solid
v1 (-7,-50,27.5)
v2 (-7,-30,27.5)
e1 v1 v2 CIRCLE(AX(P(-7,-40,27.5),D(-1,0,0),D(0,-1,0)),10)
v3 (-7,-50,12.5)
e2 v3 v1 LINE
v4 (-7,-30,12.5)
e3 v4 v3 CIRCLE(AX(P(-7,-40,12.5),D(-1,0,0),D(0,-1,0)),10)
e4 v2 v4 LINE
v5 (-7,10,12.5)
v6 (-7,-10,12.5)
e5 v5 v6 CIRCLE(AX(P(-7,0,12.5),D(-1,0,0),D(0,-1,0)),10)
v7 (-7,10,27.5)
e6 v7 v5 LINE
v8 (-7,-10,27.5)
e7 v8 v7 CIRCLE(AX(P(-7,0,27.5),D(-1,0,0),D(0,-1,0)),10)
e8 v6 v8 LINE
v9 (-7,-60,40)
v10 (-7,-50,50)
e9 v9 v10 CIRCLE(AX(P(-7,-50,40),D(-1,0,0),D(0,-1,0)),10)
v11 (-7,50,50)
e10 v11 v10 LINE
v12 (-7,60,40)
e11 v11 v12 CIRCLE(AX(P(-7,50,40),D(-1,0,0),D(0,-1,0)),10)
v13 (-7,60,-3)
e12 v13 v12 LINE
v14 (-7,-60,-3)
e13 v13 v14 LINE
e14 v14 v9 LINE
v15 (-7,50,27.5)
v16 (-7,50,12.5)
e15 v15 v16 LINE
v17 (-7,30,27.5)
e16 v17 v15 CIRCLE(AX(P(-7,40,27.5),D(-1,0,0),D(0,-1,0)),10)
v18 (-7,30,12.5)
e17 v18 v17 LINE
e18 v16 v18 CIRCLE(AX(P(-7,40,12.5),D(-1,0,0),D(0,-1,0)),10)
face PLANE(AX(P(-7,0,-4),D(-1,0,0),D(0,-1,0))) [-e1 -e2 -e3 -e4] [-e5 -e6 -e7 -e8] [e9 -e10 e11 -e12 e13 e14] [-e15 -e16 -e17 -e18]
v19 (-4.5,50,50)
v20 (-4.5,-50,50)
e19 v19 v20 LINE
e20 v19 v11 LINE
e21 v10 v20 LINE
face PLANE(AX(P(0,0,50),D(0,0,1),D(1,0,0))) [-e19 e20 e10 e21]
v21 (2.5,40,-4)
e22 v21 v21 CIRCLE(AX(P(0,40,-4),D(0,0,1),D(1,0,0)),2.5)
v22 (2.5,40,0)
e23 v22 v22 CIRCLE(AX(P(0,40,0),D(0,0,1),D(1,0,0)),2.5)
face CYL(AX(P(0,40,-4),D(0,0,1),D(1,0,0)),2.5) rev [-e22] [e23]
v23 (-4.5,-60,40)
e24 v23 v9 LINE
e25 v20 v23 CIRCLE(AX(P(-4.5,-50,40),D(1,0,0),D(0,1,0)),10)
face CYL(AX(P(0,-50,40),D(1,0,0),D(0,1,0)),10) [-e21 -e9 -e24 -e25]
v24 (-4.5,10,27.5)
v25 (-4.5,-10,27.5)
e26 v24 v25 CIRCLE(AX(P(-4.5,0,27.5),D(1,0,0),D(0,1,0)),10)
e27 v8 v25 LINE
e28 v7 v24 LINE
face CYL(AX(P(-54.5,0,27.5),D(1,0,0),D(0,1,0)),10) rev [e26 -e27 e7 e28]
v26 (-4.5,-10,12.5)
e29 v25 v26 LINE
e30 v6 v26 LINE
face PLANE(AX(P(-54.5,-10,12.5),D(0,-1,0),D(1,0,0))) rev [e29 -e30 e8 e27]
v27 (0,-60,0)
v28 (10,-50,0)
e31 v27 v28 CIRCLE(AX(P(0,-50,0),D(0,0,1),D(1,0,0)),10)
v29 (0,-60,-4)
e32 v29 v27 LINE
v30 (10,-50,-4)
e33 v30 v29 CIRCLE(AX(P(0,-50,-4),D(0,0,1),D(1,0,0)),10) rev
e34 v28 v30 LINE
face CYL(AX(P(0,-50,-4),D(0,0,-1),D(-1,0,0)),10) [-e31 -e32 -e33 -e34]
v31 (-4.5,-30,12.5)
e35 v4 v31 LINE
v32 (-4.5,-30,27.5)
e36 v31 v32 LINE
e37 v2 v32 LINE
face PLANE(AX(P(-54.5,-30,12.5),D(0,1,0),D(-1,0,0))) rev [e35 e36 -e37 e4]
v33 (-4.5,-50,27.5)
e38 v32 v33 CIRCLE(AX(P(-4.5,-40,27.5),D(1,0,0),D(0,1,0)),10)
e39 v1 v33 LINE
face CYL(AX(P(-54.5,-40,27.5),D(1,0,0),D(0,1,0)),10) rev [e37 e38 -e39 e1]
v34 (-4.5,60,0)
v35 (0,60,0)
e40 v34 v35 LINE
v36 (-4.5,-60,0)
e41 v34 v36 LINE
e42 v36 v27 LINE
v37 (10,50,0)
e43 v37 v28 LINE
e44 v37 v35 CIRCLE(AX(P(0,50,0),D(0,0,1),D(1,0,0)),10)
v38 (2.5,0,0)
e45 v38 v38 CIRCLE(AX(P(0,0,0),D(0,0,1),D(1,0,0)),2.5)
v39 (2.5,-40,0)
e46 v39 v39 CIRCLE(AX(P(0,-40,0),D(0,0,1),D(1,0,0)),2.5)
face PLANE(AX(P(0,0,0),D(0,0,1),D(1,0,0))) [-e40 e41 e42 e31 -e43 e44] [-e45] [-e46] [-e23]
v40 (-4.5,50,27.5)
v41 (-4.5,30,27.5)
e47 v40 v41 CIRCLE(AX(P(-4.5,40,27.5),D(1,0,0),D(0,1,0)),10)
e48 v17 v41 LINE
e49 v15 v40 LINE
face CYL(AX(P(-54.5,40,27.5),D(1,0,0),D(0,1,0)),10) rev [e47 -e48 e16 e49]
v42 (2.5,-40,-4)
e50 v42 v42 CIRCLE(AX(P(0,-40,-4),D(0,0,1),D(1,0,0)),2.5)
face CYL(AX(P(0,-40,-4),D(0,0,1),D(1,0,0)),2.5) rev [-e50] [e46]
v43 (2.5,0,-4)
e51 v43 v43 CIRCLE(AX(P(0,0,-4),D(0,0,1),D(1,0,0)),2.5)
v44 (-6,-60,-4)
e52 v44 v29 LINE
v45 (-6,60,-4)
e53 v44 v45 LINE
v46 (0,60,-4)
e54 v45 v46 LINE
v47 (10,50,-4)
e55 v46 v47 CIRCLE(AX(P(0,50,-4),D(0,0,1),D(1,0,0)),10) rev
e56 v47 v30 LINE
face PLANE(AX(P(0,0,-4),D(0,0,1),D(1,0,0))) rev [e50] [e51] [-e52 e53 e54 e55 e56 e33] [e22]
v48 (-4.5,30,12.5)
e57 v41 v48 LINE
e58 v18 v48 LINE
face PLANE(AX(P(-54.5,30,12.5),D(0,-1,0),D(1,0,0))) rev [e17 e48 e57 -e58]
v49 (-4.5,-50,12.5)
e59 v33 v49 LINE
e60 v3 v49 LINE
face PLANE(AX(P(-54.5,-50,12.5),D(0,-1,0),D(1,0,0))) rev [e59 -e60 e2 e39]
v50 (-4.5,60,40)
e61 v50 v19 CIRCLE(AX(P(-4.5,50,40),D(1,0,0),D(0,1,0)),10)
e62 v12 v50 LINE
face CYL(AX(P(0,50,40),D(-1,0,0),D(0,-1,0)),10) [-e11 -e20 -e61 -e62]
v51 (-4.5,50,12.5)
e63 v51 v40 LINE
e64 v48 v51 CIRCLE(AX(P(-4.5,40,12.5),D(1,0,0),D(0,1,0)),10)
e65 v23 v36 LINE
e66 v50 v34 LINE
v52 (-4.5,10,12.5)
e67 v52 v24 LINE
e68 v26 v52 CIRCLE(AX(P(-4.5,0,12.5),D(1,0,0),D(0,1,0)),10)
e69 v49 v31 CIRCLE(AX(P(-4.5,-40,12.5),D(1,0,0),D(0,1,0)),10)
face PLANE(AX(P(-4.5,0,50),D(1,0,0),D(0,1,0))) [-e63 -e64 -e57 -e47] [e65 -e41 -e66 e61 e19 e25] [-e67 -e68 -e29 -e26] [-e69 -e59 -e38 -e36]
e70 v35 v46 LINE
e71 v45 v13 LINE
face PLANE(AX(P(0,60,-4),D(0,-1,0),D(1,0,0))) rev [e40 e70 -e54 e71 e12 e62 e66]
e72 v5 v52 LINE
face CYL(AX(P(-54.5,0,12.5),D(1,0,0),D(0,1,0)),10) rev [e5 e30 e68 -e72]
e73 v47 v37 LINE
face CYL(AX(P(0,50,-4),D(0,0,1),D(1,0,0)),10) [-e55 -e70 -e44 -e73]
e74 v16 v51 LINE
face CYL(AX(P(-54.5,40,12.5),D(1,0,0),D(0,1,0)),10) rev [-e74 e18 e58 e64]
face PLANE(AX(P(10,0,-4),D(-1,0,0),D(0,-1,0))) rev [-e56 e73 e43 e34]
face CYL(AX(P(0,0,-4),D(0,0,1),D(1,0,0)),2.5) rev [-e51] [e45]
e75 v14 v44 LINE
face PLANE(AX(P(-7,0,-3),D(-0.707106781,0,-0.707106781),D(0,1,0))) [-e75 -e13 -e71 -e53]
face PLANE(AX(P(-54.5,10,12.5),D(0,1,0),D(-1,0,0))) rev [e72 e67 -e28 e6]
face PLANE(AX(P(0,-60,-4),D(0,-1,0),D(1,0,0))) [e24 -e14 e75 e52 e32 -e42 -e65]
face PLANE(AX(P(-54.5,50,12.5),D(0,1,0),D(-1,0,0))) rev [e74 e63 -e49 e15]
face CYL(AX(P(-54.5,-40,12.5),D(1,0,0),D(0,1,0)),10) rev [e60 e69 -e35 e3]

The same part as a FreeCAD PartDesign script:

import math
import FreeCAD as App
import Part
import Sketcher


def edges_at(feature, points):
    """Names of the edges that pass closest to the given points."""
    edges = feature.Shape.Edges
    near = lambda p: min(range(len(edges)), key=lambda i: edges[i].distToShape(Part.Vertex(*p))[0])
    return sorted({f"Edge{near(p) + 1}" for p in points})


def add_polygon(sketch, points):
    """Adds a closed chain of lines whose ends are joined by coincident constraints."""
    first, n = sketch.GeometryCount, len(points)
    for a, b in zip(points, points[1:] + points[:1]):
        sketch.addGeometry(Part.LineSegment(App.Vector(*a, 0), App.Vector(*b, 0)), False)
    for i in range(n):
        sketch.addConstraint(Sketcher.Constraint("Coincident", first + i, 2, first + (i + 1) % n, 1))

doc = App.newDocument("Part")
params = doc.addObject("Spreadsheet::Sheet", "Params")
for row, (alias, value) in enumerate([
    ("sketch1_diameter", "5 mm"),
    ("sketch1_width", "17 mm"),
    ("sketch1_height", "120 mm"),
    ("pad1_length", "4 mm"),
    ("sketch2_height", "120 mm"),
    ("sketch2_width", "2.5 mm"),
    ("pad2_length", "50 mm"),
    ("fillet_radius", "10 mm"),
    ("sketch3_radius", "10 mm"),
    ("sketch3_height", "15 mm"),
    ("pocket1_length", "50 mm"),
    ("chamfer_size", "1 mm"),
], start=1):
    params.set(f"A{row}", alias)
    params.set(f"B{row}", "=" + value)
    params.setAlias(f"B{row}", alias)

body = doc.addObject("PartDesign::Body", "Body")

# Sketch on XY plane
sketch1 = body.newObject("Sketcher::SketchObject", "Sketch")
sketch1.AttachmentSupport = (doc.getObject("XY_Plane"), [""])
sketch1.MapMode = "FlatFace"
add_polygon(sketch1, [(10, -60), (10, 60), (-7, 60), (-7, -60)])  # lines 0-3
sketch1.addGeometry(Part.Circle(App.Vector(0, -40, 0), App.Vector(0, 0, 1), 2.5), False)  # 4
sketch1.addGeometry(Part.Circle(App.Vector(0, 0, 0), App.Vector(0, 0, 1), 2.5), False)  # 5
sketch1.addGeometry(Part.Circle(App.Vector(0, 40, 0), App.Vector(0, 0, 1), 2.5), False)  # 6
sketch1.addConstraint([
    Sketcher.Constraint("Vertical", 0),
    Sketcher.Constraint("Horizontal", 1),
    Sketcher.Constraint("Vertical", 2),
    Sketcher.Constraint("Horizontal", 3),
    Sketcher.Constraint("Coincident", 5, 3, -1, 1),
    Sketcher.Constraint("Equal", 4, 5),
    Sketcher.Constraint("Equal", 5, 6),
    Sketcher.Constraint("Symmetric", 4, 3, 6, 3, -1, 1),
    Sketcher.Constraint("PointOnObject", 4, 3, -2),
    Sketcher.Constraint("Diameter", 4, 5.0),
    Sketcher.Constraint("DistanceX", 1, 2, 1, 1, 17.0),
    Sketcher.Constraint("DistanceY", 0, 1, 0, 2, 120.0),
    Sketcher.Constraint("DistanceY", 4, 3, -1, 1, 40.0),
    Sketcher.Constraint("DistanceX", -1, 1, 0, 2, 10.0),
    Sketcher.Constraint("DistanceY", -1, 1, 0, 2, 60.0),
])
sketch1.setExpression("Constraints[13]", "Params.sketch1_diameter")
sketch1.setExpression("Constraints[14]", "Params.sketch1_width")
sketch1.setExpression("Constraints[15]", "Params.sketch1_height")
pad1 = body.newObject("PartDesign::Pad", "Pad")
pad1.Profile = sketch1
pad1.setExpression("Length", "Params.pad1_length")
pad1.Reversed = True

# Sketch on XY plane
sketch2 = body.newObject("Sketcher::SketchObject", "Sketch001")
sketch2.AttachmentSupport = (doc.getObject("XY_Plane"), [""])
sketch2.MapMode = "FlatFace"
add_polygon(sketch2, [(-7, 60), (-7, -60), (-4.5, -60), (-4.5, 60)])  # lines 0-3
sketch2.addConstraint([
    Sketcher.Constraint("Vertical", 0),
    Sketcher.Constraint("Horizontal", 1),
    Sketcher.Constraint("Vertical", 2),
    Sketcher.Constraint("Horizontal", 3),
    Sketcher.Constraint("DistanceY", 0, 2, 0, 1, 120.0),
    Sketcher.Constraint("DistanceX", 1, 1, 1, 2, 2.5),
    Sketcher.Constraint("DistanceX", 0, 2, -1, 1, 7.0),
    Sketcher.Constraint("DistanceY", 0, 2, -1, 1, 60.0),
])
sketch2.setExpression("Constraints[8]", "Params.sketch2_height")
sketch2.setExpression("Constraints[9]", "Params.sketch2_width")
pad2 = body.newObject("PartDesign::Pad", "Pad001")
pad2.Profile = sketch2
pad2.setExpression("Length", "Params.pad2_length")
doc.recompute()

fillet = body.newObject("PartDesign::Fillet", "Fillet")
fillet.Base = (pad2, edges_at(pad2, [
    (10, 60, -2),
    (10, -60, -2),
    (-5.75, 60, 50),
    (-5.75, -60, 50),
]))
fillet.setExpression("Radius", "Params.fillet_radius")

# Sketch on YZ plane
sketch3 = body.newObject("Sketcher::SketchObject", "Sketch002")
sketch3.AttachmentSupport = (doc.getObject("YZ_Plane"), [""])
sketch3.MapMode = "FlatFace"
sketch3.AttachmentOffset = App.Placement(App.Vector(0, 0, -4.5), App.Rotation())
sketch3.addGeometry([
    Part.LineSegment(App.Vector(-50, 27.5, 0), App.Vector(-50, 12.5, 0)),  # 0
    Part.ArcOfCircle(Part.Circle(App.Vector(-40, 12.5, 0), App.Vector(0, 0, 1), 10), math.radians(180), math.radians(360)),  # 1
    Part.LineSegment(App.Vector(-30, 12.5, 0), App.Vector(-30, 27.5, 0)),  # 2
    Part.ArcOfCircle(Part.Circle(App.Vector(-40, 27.5, 0), App.Vector(0, 0, 1), 10), math.radians(0), math.radians(180)),  # 3
    Part.LineSegment(App.Vector(-10, 27.5, 0), App.Vector(-10, 12.5, 0)),  # 4
    Part.ArcOfCircle(Part.Circle(App.Vector(0, 12.5, 0), App.Vector(0, 0, 1), 10), math.radians(180), math.radians(360)),  # 5
    Part.LineSegment(App.Vector(10, 12.5, 0), App.Vector(10, 27.5, 0)),  # 6
    Part.ArcOfCircle(Part.Circle(App.Vector(0, 27.5, 0), App.Vector(0, 0, 1), 10), math.radians(0), math.radians(180)),  # 7
    Part.LineSegment(App.Vector(30, 27.5, 0), App.Vector(30, 12.5, 0)),  # 8
    Part.ArcOfCircle(Part.Circle(App.Vector(40, 12.5, 0), App.Vector(0, 0, 1), 10), math.radians(180), math.radians(360)),  # 9
    Part.LineSegment(App.Vector(50, 12.5, 0), App.Vector(50, 27.5, 0)),  # 10
    Part.ArcOfCircle(Part.Circle(App.Vector(40, 27.5, 0), App.Vector(0, 0, 1), 10), math.radians(0), math.radians(180)),  # 11
], False)
sketch3.addConstraint([
    Sketcher.Constraint("Tangent", 0, 2, 1, 1),
    Sketcher.Constraint("Tangent", 1, 2, 2, 1),
    Sketcher.Constraint("Tangent", 2, 2, 3, 1),
    Sketcher.Constraint("Tangent", 3, 2, 0, 1),
    Sketcher.Constraint("Tangent", 4, 2, 5, 1),
    Sketcher.Constraint("Tangent", 5, 2, 6, 1),
    Sketcher.Constraint("Tangent", 6, 2, 7, 1),
    Sketcher.Constraint("Tangent", 7, 2, 4, 1),
    Sketcher.Constraint("Tangent", 8, 2, 9, 1),
    Sketcher.Constraint("Tangent", 9, 2, 10, 1),
    Sketcher.Constraint("Tangent", 10, 2, 11, 1),
    Sketcher.Constraint("Tangent", 11, 2, 8, 1),
    Sketcher.Constraint("Vertical", 0),
    Sketcher.Constraint("Vertical", 2),
    Sketcher.Constraint("Vertical", 4),
    Sketcher.Constraint("Vertical", 6),
    Sketcher.Constraint("Vertical", 8),
    Sketcher.Constraint("Vertical", 10),
    Sketcher.Constraint("Equal", 3, 5),
    Sketcher.Constraint("Equal", 7, 9),
    Sketcher.Constraint("Symmetric", 1, 3, 9, 3, -2),
    Sketcher.Constraint("PointOnObject", 5, 3, -2),
    Sketcher.Constraint("Horizontal", 1, 3, 5, 3),
    Sketcher.Constraint("Horizontal", 3, 3, 7, 3),
    Sketcher.Constraint("Horizontal", 7, 3, 11, 3),
    Sketcher.Constraint("Radius", 1, 10.0),
    Sketcher.Constraint("DistanceY", 0, 2, 0, 1, 15.0),
    Sketcher.Constraint("DistanceX", 1, 3, -1, 1, 40.0),
    Sketcher.Constraint("DistanceY", -1, 1, 1, 3, 12.5),
])
sketch3.setExpression("Constraints[25]", "Params.sketch3_radius")
sketch3.setExpression("Constraints[26]", "Params.sketch3_height")
pocket1 = body.newObject("PartDesign::Pocket", "Pocket")
pocket1.Profile = sketch3
pocket1.setExpression("Length", "Params.pocket1_length")
doc.recompute()

chamfer = body.newObject("PartDesign::Chamfer", "Chamfer")
chamfer.Base = (pocket1, edges_at(pocket1, [(-7, 0, -4)]))
chamfer.setExpression("Size", "Params.chamfer_size")

doc.recompute()
